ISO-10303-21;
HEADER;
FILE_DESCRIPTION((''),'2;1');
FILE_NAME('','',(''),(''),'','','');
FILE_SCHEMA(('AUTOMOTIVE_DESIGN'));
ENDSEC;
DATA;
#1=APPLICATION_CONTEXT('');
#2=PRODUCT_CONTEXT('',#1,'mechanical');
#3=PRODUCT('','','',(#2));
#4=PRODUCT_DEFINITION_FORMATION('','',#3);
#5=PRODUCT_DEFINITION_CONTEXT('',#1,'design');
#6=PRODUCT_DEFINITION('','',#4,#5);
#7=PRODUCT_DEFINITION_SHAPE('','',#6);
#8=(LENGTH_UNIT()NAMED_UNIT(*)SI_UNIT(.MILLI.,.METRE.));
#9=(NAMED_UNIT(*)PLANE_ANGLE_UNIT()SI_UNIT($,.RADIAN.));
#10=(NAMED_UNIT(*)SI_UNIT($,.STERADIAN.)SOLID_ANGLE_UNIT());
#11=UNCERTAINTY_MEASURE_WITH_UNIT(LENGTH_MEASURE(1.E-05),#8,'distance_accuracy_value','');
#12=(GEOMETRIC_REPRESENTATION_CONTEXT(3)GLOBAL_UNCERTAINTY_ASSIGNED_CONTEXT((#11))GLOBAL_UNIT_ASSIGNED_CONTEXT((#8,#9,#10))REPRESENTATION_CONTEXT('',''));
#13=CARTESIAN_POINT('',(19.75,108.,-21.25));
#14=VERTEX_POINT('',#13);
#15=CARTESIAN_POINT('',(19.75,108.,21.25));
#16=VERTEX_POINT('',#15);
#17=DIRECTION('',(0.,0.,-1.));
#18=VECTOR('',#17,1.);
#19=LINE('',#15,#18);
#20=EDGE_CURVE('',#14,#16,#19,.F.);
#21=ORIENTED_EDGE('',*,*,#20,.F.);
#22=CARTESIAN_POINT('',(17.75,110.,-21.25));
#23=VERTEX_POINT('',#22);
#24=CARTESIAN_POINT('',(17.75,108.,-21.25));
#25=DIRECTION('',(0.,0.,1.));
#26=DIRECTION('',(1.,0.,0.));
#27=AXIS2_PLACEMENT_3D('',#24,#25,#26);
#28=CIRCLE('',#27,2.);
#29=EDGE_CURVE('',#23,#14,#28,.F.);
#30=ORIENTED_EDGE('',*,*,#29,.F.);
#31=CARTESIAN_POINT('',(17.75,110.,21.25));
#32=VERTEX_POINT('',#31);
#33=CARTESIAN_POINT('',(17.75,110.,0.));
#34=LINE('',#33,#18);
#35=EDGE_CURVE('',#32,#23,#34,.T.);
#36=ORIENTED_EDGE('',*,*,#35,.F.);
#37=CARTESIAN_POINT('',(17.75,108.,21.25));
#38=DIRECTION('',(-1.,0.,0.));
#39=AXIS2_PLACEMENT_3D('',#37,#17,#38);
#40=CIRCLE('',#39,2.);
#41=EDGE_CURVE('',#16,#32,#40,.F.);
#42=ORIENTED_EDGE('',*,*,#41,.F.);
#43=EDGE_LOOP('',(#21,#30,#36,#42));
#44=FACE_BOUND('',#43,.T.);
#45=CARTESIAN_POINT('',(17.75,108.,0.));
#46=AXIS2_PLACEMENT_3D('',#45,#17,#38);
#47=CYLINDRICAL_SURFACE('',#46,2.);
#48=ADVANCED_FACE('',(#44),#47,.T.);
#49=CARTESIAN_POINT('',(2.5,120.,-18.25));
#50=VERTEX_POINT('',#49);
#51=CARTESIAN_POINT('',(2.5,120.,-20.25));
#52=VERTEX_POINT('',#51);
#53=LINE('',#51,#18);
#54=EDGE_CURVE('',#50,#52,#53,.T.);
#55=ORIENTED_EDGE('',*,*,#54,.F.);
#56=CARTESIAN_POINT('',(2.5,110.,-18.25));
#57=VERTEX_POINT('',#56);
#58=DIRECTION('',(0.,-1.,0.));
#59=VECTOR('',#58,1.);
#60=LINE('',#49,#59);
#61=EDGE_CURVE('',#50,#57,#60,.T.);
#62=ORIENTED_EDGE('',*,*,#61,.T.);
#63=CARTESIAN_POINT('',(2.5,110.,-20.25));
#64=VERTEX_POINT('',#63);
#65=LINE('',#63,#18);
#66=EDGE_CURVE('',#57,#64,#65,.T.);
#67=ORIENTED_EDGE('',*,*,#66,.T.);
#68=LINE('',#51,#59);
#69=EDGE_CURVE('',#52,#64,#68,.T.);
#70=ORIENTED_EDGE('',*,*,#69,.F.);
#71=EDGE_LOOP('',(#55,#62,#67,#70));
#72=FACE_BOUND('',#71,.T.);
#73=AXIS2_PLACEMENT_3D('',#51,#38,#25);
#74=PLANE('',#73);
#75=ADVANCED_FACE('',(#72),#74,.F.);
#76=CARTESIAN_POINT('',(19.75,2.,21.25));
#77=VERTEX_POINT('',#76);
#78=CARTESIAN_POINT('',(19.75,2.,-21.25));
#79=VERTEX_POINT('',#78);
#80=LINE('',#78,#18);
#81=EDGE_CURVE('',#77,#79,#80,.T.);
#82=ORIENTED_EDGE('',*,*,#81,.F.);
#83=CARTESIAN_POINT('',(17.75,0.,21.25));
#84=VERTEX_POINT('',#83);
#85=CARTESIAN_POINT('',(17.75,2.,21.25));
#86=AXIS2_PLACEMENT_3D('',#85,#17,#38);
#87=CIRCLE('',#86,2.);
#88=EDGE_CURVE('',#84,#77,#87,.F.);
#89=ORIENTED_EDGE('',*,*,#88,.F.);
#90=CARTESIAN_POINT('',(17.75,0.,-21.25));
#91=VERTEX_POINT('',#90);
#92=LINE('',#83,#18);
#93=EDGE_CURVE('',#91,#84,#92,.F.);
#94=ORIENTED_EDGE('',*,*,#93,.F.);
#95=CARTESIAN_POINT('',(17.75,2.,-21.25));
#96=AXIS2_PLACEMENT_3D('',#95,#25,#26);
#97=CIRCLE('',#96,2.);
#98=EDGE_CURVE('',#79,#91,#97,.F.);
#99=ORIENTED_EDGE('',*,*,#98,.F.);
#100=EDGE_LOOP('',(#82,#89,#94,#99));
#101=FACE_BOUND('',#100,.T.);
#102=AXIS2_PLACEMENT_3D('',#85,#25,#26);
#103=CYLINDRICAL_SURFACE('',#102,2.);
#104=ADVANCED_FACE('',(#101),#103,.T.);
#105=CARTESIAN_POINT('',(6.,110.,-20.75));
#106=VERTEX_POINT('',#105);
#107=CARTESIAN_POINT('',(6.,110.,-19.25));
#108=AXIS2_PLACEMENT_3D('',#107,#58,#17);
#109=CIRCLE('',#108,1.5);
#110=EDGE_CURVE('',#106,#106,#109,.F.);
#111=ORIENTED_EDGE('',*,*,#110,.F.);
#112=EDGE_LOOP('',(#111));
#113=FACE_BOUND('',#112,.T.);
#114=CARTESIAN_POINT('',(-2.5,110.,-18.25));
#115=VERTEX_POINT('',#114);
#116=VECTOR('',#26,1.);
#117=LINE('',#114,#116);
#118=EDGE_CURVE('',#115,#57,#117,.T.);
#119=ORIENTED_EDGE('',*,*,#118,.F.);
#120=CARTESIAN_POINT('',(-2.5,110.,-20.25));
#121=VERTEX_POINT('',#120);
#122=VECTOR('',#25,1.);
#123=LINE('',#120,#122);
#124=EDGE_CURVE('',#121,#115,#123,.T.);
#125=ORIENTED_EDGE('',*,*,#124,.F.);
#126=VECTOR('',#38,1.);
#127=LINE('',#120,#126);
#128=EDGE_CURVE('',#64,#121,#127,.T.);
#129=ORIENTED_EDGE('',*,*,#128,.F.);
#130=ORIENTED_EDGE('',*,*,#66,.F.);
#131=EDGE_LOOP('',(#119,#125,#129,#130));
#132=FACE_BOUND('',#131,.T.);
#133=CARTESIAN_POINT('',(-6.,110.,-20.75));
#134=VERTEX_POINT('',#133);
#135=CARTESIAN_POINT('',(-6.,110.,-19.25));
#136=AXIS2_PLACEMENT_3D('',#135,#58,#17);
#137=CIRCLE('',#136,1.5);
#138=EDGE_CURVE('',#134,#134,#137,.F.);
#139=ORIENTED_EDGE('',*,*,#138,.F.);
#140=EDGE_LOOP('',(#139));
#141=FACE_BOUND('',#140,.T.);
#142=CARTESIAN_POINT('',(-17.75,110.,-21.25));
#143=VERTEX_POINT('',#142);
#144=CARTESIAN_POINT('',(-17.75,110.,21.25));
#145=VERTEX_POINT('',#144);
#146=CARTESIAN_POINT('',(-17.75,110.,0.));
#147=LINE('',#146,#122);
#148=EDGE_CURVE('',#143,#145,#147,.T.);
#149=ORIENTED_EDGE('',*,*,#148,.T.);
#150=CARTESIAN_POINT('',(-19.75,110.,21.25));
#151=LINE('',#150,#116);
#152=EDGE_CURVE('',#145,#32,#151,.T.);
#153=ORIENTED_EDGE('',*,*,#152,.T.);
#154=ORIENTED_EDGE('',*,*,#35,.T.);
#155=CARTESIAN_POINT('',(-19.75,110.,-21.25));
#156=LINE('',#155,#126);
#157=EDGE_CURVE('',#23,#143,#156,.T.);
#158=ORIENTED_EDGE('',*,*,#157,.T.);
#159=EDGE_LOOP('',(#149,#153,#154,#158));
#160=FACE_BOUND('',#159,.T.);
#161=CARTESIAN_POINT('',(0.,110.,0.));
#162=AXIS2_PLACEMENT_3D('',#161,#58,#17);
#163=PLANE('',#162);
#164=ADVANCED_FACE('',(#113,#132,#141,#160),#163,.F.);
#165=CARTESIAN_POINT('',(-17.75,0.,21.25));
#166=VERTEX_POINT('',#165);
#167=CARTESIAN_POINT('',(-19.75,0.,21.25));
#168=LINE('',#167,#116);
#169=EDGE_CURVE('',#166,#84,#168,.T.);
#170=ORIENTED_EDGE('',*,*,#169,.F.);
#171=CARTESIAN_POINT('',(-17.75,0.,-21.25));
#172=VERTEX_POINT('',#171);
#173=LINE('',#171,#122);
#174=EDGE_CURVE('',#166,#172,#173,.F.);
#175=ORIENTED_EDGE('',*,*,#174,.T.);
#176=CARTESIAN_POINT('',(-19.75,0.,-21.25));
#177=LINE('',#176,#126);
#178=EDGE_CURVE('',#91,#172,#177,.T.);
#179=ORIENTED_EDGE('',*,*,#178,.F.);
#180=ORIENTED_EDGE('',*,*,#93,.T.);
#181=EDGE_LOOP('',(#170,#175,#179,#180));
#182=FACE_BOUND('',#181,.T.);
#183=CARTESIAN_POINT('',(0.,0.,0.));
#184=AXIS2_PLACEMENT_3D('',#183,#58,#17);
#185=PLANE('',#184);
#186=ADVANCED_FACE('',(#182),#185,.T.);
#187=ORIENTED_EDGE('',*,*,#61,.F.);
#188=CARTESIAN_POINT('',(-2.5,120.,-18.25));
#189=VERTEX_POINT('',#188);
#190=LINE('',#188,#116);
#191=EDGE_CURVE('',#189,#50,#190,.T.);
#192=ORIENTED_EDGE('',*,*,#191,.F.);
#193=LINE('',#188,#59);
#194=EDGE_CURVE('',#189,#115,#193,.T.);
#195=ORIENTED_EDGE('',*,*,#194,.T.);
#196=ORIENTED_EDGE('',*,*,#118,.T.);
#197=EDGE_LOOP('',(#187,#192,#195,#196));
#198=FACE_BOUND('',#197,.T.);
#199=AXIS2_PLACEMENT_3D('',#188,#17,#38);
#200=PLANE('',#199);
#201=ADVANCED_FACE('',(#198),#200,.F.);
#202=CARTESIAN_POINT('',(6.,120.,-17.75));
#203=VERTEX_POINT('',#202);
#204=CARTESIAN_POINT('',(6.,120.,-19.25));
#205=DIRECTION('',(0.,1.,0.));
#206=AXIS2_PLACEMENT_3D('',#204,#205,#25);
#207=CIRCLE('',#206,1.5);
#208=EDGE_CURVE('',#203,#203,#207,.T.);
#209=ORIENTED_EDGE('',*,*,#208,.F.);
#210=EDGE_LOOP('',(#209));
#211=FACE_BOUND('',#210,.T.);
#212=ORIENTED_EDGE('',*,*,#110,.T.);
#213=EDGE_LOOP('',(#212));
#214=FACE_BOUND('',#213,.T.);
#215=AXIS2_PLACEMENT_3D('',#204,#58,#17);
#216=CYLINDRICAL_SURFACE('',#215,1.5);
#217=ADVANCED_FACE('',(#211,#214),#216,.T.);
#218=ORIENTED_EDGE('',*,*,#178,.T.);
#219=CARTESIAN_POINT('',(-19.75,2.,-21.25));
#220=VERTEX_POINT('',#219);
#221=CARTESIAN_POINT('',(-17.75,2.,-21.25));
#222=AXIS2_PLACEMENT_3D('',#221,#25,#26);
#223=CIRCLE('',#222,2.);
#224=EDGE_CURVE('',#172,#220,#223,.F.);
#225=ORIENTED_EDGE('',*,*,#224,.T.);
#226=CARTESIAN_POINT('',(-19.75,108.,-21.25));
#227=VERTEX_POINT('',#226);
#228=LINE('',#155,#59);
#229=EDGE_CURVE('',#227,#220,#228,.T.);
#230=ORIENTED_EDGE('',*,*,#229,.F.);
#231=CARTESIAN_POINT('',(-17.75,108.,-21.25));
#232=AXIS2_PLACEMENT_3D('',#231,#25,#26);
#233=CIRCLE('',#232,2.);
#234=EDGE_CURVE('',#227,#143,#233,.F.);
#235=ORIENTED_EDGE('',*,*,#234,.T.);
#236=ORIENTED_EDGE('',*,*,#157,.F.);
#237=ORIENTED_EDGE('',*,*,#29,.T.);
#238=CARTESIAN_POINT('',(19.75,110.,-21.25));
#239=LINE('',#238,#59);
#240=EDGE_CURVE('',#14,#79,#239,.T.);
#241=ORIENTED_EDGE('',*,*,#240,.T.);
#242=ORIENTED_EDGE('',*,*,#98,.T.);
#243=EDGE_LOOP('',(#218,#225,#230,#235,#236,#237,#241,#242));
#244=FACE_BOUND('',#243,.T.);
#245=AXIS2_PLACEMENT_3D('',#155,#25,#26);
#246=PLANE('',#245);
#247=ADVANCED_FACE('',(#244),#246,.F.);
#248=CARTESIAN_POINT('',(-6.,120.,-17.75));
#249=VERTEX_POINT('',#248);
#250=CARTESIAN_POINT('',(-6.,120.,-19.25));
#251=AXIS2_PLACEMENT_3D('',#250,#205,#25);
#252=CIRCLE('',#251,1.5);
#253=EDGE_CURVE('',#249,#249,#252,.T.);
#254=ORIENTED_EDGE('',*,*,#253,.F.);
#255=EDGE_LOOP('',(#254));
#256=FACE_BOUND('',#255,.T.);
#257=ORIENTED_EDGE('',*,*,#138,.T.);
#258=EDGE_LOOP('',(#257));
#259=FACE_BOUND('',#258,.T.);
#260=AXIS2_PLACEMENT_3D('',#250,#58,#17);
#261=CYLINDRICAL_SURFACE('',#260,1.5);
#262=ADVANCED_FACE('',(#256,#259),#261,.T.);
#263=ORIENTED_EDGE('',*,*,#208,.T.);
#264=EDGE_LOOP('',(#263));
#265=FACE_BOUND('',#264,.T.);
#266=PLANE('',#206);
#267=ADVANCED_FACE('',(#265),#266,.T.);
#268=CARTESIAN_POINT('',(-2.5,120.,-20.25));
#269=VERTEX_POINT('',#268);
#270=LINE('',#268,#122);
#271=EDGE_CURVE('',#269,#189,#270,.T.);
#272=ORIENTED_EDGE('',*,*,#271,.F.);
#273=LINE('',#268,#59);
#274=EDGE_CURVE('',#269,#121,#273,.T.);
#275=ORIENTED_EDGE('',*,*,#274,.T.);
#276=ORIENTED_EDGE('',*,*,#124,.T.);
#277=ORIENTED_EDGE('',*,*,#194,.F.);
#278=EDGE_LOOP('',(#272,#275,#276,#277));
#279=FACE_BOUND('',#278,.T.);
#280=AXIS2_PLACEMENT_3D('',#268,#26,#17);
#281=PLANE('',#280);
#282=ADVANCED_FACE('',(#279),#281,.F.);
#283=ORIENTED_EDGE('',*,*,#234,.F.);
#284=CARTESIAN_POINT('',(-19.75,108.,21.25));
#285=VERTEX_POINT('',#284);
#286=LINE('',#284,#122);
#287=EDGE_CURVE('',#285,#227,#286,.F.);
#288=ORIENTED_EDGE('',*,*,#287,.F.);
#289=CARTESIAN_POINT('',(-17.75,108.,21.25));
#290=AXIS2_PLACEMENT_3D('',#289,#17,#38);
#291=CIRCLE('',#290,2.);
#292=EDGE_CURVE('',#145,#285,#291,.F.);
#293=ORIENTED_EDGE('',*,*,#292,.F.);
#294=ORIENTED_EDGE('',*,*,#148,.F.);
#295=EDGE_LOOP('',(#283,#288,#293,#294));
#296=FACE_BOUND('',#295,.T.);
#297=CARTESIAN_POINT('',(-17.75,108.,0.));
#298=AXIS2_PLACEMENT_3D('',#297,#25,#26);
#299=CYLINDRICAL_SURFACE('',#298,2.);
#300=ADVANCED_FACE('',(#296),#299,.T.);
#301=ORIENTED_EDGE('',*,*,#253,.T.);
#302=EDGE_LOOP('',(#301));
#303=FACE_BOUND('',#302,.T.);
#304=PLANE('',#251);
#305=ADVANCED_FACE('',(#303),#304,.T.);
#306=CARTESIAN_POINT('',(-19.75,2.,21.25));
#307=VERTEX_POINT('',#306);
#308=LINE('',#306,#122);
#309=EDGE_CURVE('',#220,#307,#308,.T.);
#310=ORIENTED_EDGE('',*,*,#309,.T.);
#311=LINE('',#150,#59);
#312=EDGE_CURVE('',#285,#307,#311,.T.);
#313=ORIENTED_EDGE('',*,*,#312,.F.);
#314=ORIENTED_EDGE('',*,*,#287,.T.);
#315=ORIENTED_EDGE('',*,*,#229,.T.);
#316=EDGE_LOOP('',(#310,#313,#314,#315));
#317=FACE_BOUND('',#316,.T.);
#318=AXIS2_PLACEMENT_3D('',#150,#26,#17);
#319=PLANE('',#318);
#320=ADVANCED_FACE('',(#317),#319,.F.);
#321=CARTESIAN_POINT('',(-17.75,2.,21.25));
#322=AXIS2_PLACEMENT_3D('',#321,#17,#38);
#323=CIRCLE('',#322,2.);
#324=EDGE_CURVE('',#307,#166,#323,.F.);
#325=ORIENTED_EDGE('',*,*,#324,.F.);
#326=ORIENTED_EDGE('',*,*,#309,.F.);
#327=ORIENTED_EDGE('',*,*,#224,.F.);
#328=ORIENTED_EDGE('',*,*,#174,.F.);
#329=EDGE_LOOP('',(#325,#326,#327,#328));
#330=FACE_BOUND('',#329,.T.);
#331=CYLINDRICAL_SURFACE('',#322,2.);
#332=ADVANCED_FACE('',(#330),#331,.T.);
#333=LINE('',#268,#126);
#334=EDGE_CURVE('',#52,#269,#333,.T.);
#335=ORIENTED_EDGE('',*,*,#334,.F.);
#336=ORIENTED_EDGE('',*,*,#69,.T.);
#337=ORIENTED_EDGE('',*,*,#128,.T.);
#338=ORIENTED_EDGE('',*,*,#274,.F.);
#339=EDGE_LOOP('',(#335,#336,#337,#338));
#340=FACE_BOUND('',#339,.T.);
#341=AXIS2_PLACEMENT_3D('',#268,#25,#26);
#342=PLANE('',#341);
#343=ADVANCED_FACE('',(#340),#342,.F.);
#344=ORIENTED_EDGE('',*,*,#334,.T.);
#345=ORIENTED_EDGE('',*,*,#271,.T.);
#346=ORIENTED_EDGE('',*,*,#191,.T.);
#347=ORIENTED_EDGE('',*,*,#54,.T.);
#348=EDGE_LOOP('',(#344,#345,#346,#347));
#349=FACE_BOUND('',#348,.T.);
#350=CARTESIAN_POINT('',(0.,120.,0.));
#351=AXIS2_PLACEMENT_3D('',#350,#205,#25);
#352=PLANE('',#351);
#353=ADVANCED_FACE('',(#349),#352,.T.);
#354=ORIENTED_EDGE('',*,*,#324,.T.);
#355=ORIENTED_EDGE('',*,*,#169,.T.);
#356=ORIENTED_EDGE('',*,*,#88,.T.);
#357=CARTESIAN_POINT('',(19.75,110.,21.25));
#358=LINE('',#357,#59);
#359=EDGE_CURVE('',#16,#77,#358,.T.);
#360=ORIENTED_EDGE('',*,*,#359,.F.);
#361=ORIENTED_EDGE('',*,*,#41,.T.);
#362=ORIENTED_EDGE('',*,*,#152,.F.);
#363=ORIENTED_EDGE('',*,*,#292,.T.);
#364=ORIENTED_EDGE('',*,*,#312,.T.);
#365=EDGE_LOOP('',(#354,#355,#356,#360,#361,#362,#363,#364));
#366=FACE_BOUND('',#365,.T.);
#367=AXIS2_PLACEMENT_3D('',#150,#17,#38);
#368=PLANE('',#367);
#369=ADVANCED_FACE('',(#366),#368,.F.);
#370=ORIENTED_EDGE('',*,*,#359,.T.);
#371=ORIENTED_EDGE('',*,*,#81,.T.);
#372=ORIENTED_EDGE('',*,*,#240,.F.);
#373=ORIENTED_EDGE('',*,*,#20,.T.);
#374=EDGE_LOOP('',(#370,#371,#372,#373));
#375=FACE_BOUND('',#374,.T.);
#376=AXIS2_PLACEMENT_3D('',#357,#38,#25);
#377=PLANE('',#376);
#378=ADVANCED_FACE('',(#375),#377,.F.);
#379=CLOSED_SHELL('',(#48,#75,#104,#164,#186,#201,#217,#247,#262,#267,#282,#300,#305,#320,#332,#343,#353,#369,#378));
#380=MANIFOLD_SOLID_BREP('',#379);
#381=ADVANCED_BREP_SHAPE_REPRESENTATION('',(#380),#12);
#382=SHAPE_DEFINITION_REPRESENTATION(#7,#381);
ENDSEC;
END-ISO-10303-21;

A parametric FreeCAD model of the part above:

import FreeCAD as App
import Part
import Sketcher
from FreeCAD import Vector
Q = App.Units.Quantity


def edges_at(feature, points):
    """Names of the edges that pass closest to the given points."""
    edges = feature.Shape.Edges
    near = lambda p: min(range(len(edges)), key=lambda i: edges[i].distToShape(Part.Vertex(*p))[0])
    return sorted({f"Edge{near(p) + 1}" for p in points})


def add_polygon(sketch, points):
    """Adds a closed chain of lines whose ends are joined by coincident constraints."""
    first, n = sketch.GeometryCount, len(points)
    for a, b in zip(points, points[1:] + points[:1]):
        sketch.addGeometry(Part.LineSegment(App.Vector(*a, 0), App.Vector(*b, 0)), False)
    for i in range(n):
        sketch.addConstraint(Sketcher.Constraint("Coincident", first + i, 2, first + (i + 1) % n, 1))

doc = App.newDocument("Part")
body = doc.addObject("PartDesign::Body", "Body")

# Sketch on XZ plane
sketch1 = body.newObject("Sketcher::SketchObject", "Sketch")
sketch1.AttachmentSupport = (doc.getObject("XZ_Plane"), [""])
sketch1.MapMode = "FlatFace"
add_polygon(sketch1, [(-20, -21), (-20, 21), (20, 21), (20, -21)])  # lines 0-3
sketch1.addConstraint(Sketcher.Constraint("Vertical", 0))
sketch1.addConstraint(Sketcher.Constraint("Horizontal", 1))
sketch1.addConstraint(Sketcher.Constraint("Vertical", 2))
sketch1.addConstraint(Sketcher.Constraint("Horizontal", 3))
sketch1.addConstraint(Sketcher.Constraint("Symmetric", 0, 2, 2, 2, -1, 1))
sketch1.addConstraint(Sketcher.Constraint("DistanceX", 1, 1, 1, 2, Q("39.5 mm")))
sketch1.addConstraint(Sketcher.Constraint("DistanceY", 0, 1, 0, 2, Q("42.5 mm")))
pad1 = body.newObject("PartDesign::Pad", "Pad")
pad1.Profile = sketch1
pad1.Length = 110
pad1.Reversed = True

# Sketch on XZ plane
sketch2 = body.newObject("Sketcher::SketchObject", "Sketch001")
sketch2.AttachmentSupport = (doc.getObject("XZ_Plane"), [""])
sketch2.MapMode = "FlatFace"
sketch2.AttachmentOffset = App.Placement(Vector(0, 0, -110), App.Rotation())
sketch2.addGeometry(Part.Circle(Vector(-6, -19.2, 0), Vector(0, 0, 1), 1.5), False)  # 0
sketch2.addGeometry(Part.Circle(Vector(6, -19.2, 0), Vector(0, 0, 1), 1.5), False)  # 1
add_polygon(sketch2, [(-2.5, -20.2), (-2.5, -18.2), (2.5, -18.2), (2.5, -20.2)])  # lines 2-5
sketch2.addConstraint(Sketcher.Constraint("Vertical", 2))
sketch2.addConstraint(Sketcher.Constraint("Horizontal", 3))
sketch2.addConstraint(Sketcher.Constraint("Vertical", 4))
sketch2.addConstraint(Sketcher.Constraint("Horizontal", 5))
sketch2.addConstraint(Sketcher.Constraint("Equal", 0, 1))
sketch2.addConstraint(Sketcher.Constraint("Symmetric", 0, 3, 1, 3, -2))
sketch2.addConstraint(Sketcher.Constraint("Diameter", 0, Q("3 mm")))
sketch2.addConstraint(Sketcher.Constraint("DistanceX", 3, 1, 3, 2, Q("5 mm")))
sketch2.addConstraint(Sketcher.Constraint("DistanceY", 2, 1, 2, 2, Q("2 mm")))
sketch2.addConstraint(Sketcher.Constraint("DistanceX", 0, 3, -1, 1, Q("6 mm")))
sketch2.addConstraint(Sketcher.Constraint("DistanceY", 0, 3, 2, 2, Q("1 mm")))
sketch2.addConstraint(Sketcher.Constraint("DistanceX", 2, 2, -1, 1, Q("2.5 mm")))
sketch2.addConstraint(Sketcher.Constraint("DistanceY", 0, 3, -1, 1, Q("19.25 mm")))
pad2 = body.newObject("PartDesign::Pad", "Pad001")
pad2.Profile = sketch2
pad2.Length = 10
pad2.Reversed = True
doc.recompute()

fillet = body.newObject("PartDesign::Fillet", "Fillet")
fillet.Base = (pad2, edges_at(pad2, [
    (-19.75, 110, 0),
    (19.75, 110, 0),
    (-19.75, 0, 0),
    (19.75, 0, 0),
]))
fillet.Radius = 2

doc.recompute()
